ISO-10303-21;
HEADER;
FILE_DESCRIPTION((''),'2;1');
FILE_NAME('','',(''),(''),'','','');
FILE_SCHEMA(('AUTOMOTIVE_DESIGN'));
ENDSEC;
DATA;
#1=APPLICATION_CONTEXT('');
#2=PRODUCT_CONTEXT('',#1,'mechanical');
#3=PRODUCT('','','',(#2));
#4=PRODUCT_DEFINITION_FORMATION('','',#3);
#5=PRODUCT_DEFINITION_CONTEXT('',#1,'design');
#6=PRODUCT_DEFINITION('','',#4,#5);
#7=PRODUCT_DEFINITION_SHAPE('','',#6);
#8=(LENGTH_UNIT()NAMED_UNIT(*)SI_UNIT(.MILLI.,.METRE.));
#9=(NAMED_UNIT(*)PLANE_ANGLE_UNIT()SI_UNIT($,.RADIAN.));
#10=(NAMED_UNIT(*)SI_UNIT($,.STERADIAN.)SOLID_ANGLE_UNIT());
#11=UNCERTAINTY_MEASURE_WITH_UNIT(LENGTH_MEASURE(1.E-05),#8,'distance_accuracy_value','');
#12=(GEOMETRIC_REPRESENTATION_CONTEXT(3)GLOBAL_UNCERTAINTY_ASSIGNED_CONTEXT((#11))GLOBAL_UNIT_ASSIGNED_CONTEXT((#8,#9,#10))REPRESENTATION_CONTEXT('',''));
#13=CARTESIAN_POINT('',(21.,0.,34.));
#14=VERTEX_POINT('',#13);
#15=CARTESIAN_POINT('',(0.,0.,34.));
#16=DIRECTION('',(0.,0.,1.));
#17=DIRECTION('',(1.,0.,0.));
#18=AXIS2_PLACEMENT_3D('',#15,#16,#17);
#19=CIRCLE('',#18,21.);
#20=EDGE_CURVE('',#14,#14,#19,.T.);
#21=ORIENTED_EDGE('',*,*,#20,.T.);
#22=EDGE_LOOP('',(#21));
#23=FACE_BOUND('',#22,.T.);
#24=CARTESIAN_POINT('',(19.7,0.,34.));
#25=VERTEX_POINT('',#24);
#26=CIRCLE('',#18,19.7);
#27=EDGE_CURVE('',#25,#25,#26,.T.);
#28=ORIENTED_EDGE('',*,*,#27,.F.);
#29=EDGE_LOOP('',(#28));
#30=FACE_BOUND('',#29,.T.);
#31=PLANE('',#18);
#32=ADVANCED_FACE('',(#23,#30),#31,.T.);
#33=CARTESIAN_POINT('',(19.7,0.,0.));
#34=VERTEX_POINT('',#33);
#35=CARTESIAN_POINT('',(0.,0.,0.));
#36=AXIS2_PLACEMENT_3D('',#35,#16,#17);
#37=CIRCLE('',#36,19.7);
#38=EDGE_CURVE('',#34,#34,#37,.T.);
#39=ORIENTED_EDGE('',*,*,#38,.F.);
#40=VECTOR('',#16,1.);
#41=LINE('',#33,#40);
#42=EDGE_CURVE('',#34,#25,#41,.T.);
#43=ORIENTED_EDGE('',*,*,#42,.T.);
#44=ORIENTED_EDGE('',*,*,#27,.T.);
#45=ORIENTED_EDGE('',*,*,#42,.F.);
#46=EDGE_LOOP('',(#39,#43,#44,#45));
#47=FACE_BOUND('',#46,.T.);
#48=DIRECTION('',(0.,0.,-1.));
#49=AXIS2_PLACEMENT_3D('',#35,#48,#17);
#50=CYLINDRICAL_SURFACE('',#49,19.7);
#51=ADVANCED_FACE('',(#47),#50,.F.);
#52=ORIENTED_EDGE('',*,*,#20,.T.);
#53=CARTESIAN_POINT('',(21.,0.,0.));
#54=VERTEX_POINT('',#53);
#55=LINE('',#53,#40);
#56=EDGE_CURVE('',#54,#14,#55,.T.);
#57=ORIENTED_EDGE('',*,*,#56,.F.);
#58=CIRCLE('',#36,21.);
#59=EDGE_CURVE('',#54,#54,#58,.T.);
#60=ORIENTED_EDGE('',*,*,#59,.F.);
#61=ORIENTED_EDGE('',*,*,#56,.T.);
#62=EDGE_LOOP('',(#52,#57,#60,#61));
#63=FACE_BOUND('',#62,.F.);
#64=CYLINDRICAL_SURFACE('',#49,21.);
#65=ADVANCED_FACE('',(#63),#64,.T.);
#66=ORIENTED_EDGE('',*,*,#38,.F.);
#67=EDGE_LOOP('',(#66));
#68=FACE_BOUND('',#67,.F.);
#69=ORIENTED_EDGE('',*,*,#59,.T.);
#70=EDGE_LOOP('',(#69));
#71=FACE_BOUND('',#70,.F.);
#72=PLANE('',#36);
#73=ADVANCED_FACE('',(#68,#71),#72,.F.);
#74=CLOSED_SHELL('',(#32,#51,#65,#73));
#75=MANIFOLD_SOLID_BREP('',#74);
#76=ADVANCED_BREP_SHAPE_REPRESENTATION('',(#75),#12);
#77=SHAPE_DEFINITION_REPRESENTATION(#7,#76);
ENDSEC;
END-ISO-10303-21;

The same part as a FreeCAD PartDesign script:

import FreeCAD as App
import Part
import Sketcher

doc = App.newDocument("Part")
body = doc.addObject("PartDesign::Body", "Body")

# Sketch on XY plane
sketch1 = body.newObject("Sketcher::SketchObject", "Sketch")
sketch1.AttachmentSupport = (doc.getObject("XY_Plane"), [""])
sketch1.MapMode = "FlatFace"
sketch1.addGeometry(Part.Circle(App.Vector(0, 0, 0), App.Vector(0, 0, 1), 19.7), False)
sketch1.addConstraint([
    Sketcher.Constraint("Coincident", 0, 3, -1, 1),
    Sketcher.Constraint("Diameter", 0, 39.4),
])
pad1 = body.newObject("PartDesign::Pad", "Pad")
pad1.Profile = sketch1
pad1.Length = 34
body2 = doc.addObject("PartDesign::Body", "Body001")

# Sketch on XY plane
sketch2 = body2.newObject("Sketcher::SketchObject", "Sketch001")
sketch2.AttachmentSupport = (doc.getObject("XY_Plane001"), [""])
sketch2.MapMode = "FlatFace"
sketch2.addGeometry(Part.Circle(App.Vector(0, 0, 0), App.Vector(0, 0, 1), 21), False)
sketch2.addConstraint([
    Sketcher.Constraint("Coincident", 0, 3, -1, 1),
    Sketcher.Constraint("Diameter", 0, 42.0),
])
pad2 = body2.newObject("PartDesign::Pad", "Pad001")
pad2.Profile = sketch2
pad2.Length = 34
doc.recompute()

boolean = body2.newObject("PartDesign::Boolean", "Boolean")
boolean.Type = "Cut"
boolean.addObjects([body])

doc.recompute()
